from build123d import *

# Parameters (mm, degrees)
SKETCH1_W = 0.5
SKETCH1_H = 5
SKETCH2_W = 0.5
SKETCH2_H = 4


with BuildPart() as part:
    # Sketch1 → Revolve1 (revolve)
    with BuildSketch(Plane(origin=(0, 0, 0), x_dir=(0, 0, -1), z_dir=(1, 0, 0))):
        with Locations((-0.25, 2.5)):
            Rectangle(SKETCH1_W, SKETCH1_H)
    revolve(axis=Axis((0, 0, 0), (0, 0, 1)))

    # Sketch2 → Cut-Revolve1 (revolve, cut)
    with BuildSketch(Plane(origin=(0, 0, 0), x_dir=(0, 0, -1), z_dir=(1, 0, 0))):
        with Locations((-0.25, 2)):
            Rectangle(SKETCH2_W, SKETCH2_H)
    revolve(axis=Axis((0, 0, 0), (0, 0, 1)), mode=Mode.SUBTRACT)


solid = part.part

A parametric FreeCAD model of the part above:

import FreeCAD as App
import Part
import Sketcher
Q = App.Units.Quantity


def add_polygon(sketch, points):
    """Adds a closed chain of lines whose ends are joined by coincident constraints."""
    first, n = sketch.GeometryCount, len(points)
    for a, b in zip(points, points[1:] + points[:1]):
        sketch.addGeometry(Part.LineSegment(App.Vector(*a, 0), App.Vector(*b, 0)), False)
    for i in range(n):
        sketch.addConstraint(Sketcher.Constraint("Coincident", first + i, 2, first + (i + 1) % n, 1))

doc = App.newDocument("Part")
body = doc.addObject("PartDesign::Body", "Body")

sketch1 = body.newObject("Sketcher::SketchObject", "Sketch")
sketch1.AttachmentSupport = (doc.getObject("YZ_Plane"), [""])
sketch1.MapMode = "FlatFace"
add_polygon(sketch1, [(5, 0.5), (0, 0.5), (0, 0), (5, 0)])
sketch1.addConstraint([
    Sketcher.Constraint("Horizontal", 0),
    Sketcher.Constraint("Vertical", 1),
    Sketcher.Constraint("Horizontal", 2),
    Sketcher.Constraint("Vertical", 3),
    Sketcher.Constraint("Coincident", 1, 2, -1, 1),
    Sketcher.Constraint("DistanceX", 0, 2, 0, 1, Q("5 mm")),
    Sketcher.Constraint("DistanceY", 1, 2, 1, 1, Q("0.5 mm")),
])
revolution = body.newObject("PartDesign::Revolution", "Revolution")
revolution.Profile = sketch1
revolution.ReferenceAxis = (sketch1, ["V_Axis"])
revolution.Angle = 360

sketch2 = body.newObject("Sketcher::SketchObject", "Sketch001")
sketch2.AttachmentSupport = (doc.getObject("YZ_Plane"), [""])
sketch2.MapMode = "FlatFace"
add_polygon(sketch2, [(4, 0.5), (0, 0.5), (0, 0), (4, 0)])
sketch2.addConstraint([
    Sketcher.Constraint("Horizontal", 0),
    Sketcher.Constraint("Vertical", 1),
    Sketcher.Constraint("Horizontal", 2),
    Sketcher.Constraint("Vertical", 3),
    Sketcher.Constraint("Coincident", 1, 2, -1, 1),
    Sketcher.Constraint("DistanceX", 0, 2, 0, 1, Q("4 mm")),
    Sketcher.Constraint("DistanceY", 1, 2, 1, 1, Q("0.5 mm")),
])
groove = body.newObject("PartDesign::Groove", "Groove")
groove.Profile = sketch2
groove.ReferenceAxis = (sketch2, ["V_Axis"])
groove.Angle = 360

doc.recompute()
